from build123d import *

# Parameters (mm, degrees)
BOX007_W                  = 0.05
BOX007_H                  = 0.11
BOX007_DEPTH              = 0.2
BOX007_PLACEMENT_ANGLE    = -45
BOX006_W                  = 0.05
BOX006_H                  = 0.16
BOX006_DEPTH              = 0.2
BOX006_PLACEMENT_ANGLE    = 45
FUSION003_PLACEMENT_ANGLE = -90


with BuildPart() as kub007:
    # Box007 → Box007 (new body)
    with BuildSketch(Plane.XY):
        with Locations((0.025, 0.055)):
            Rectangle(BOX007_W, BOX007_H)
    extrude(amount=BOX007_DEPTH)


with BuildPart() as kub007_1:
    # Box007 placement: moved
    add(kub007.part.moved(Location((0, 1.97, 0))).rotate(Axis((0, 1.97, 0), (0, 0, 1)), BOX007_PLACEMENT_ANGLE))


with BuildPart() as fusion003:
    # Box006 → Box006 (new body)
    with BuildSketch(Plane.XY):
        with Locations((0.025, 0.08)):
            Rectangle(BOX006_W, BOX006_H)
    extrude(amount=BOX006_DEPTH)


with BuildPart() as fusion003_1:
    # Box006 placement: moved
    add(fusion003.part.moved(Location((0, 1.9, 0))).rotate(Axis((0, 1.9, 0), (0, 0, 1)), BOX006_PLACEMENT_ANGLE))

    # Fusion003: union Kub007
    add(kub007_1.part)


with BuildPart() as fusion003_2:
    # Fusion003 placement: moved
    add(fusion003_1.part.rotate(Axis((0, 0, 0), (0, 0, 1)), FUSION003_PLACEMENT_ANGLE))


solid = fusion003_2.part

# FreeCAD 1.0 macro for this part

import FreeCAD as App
import Part
import Sketcher

V = App.Vector

doc = App.newDocument("Part")
body = doc.addObject("PartDesign::Body", "Body")

# Sketch on XY plane
sketch1 = doc.addObject("Sketcher::SketchObject", "Sketch")
body.addObject(sketch1)
sketch1.AttachmentSupport = (doc.XY_Plane, [""])
sketch1.MapMode = "FlatFace"
sketch1.addGeometry(Part.LineSegment(V(0, 0.11, 0), V(0, 0, 0)), False)
sketch1.addGeometry(Part.LineSegment(V(0, 0, 0), V(0.05, 0, 0)), False)
sketch1.addGeometry(Part.LineSegment(V(0.05, 0, 0), V(0.05, 0.11, 0)), False)
sketch1.addGeometry(Part.LineSegment(V(0.05, 0.11, 0), V(0, 0.11, 0)), False)
sketch1.addConstraint(Sketcher.Constraint("Coincident", 0, 2, 1, 1))
sketch1.addConstraint(Sketcher.Constraint("Coincident", 1, 2, 2, 1))
sketch1.addConstraint(Sketcher.Constraint("Coincident", 2, 2, 3, 1))
sketch1.addConstraint(Sketcher.Constraint("Coincident", 3, 2, 0, 1))
sketch1.addConstraint(Sketcher.Constraint("Vertical", 0))
sketch1.addConstraint(Sketcher.Constraint("Horizontal", 1))
sketch1.addConstraint(Sketcher.Constraint("Vertical", 2))
sketch1.addConstraint(Sketcher.Constraint("Horizontal", 3))
sketch1.addConstraint(Sketcher.Constraint("Coincident", 0, 2, -1, 1))
sketch1.addConstraint(Sketcher.Constraint("DistanceX", 1, 1, 1, 2, 0.05))
sketch1.addConstraint(Sketcher.Constraint("DistanceY", 0, 2, 0, 1, 0.11))
pad1 = doc.addObject("PartDesign::Pad", "Pad")
body.addObject(pad1)
pad1.Profile = sketch1
pad1.Length = 0.2
body2 = doc.addObject("PartDesign::Body", "Body001")
doc.recompute()

body.Placement = App.Placement(V(0, 1.97, 0), App.Rotation(V(0, 0, 1), 315))
boolean = doc.addObject("PartDesign::Boolean", "Boolean")
body2.addObject(boolean)
boolean.Type = "Fuse"
boolean.addObjects([body])
body3 = doc.addObject("PartDesign::Body", "Body002")

# Sketch on XY plane
sketch2 = doc.addObject("Sketcher::SketchObject", "Sketch001")
body3.addObject(sketch2)
sketch2.AttachmentSupport = (doc.getObject("XY_Plane002"), [""])
sketch2.MapMode = "FlatFace"
sketch2.addGeometry(Part.LineSegment(V(0, 0.16, 0), V(0, 0, 0)), False)
sketch2.addGeometry(Part.LineSegment(V(0, 0, 0), V(0.05, 0, 0)), False)
sketch2.addGeometry(Part.LineSegment(V(0.05, 0, 0), V(0.05, 0.16, 0)), False)
sketch2.addGeometry(Part.LineSegment(V(0.05, 0.16, 0), V(0, 0.16, 0)), False)
sketch2.addConstraint(Sketcher.Constraint("Coincident", 0, 2, 1, 1))
sketch2.addConstraint(Sketcher.Constraint("Coincident", 1, 2, 2, 1))
sketch2.addConstraint(Sketcher.Constraint("Coincident", 2, 2, 3, 1))
sketch2.addConstraint(Sketcher.Constraint("Coincident", 3, 2, 0, 1))
sketch2.addConstraint(Sketcher.Constraint("Vertical", 0))
sketch2.addConstraint(Sketcher.Constraint("Horizontal", 1))
sketch2.addConstraint(Sketcher.Constraint("Vertical", 2))
sketch2.addConstraint(Sketcher.Constraint("Horizontal", 3))
sketch2.addConstraint(Sketcher.Constraint("Coincident", 0, 2, -1, 1))
sketch2.addConstraint(Sketcher.Constraint("DistanceX", 1, 1, 1, 2, 0.05))
sketch2.addConstraint(Sketcher.Constraint("DistanceY", 0, 2, 0, 1, 0.16))
pad2 = doc.addObject("PartDesign::Pad", "Pad001")
body3.addObject(pad2)
pad2.Profile = sketch2
pad2.Length = 0.2
body4 = doc.addObject("PartDesign::Body", "Body003")
doc.recompute()

body3.Placement = App.Placement(V(0, 1.9, 0), App.Rotation(V(0, 0, 1), 45))
boolean2 = doc.addObject("PartDesign::Boolean", "Boolean001")
body4.addObject(boolean2)
boolean2.Type = "Fuse"
boolean2.addObjects([body3])
doc.recompute()

boolean3 = doc.addObject("PartDesign::Boolean", "Boolean002")
body4.addObject(boolean3)
boolean3.Type = "Fuse"
boolean3.addObjects([body2])
body5 = doc.addObject("PartDesign::Body", "Body004")
doc.recompute()

body4.Placement = App.Placement(V(0, 0, 0), App.Rotation(V(0, 0, 1), 270))
boolean4 = doc.addObject("PartDesign::Boolean", "Boolean003")
body5.addObject(boolean4)
boolean4.Type = "Fuse"
boolean4.addObjects([body4])

doc.recompute()
